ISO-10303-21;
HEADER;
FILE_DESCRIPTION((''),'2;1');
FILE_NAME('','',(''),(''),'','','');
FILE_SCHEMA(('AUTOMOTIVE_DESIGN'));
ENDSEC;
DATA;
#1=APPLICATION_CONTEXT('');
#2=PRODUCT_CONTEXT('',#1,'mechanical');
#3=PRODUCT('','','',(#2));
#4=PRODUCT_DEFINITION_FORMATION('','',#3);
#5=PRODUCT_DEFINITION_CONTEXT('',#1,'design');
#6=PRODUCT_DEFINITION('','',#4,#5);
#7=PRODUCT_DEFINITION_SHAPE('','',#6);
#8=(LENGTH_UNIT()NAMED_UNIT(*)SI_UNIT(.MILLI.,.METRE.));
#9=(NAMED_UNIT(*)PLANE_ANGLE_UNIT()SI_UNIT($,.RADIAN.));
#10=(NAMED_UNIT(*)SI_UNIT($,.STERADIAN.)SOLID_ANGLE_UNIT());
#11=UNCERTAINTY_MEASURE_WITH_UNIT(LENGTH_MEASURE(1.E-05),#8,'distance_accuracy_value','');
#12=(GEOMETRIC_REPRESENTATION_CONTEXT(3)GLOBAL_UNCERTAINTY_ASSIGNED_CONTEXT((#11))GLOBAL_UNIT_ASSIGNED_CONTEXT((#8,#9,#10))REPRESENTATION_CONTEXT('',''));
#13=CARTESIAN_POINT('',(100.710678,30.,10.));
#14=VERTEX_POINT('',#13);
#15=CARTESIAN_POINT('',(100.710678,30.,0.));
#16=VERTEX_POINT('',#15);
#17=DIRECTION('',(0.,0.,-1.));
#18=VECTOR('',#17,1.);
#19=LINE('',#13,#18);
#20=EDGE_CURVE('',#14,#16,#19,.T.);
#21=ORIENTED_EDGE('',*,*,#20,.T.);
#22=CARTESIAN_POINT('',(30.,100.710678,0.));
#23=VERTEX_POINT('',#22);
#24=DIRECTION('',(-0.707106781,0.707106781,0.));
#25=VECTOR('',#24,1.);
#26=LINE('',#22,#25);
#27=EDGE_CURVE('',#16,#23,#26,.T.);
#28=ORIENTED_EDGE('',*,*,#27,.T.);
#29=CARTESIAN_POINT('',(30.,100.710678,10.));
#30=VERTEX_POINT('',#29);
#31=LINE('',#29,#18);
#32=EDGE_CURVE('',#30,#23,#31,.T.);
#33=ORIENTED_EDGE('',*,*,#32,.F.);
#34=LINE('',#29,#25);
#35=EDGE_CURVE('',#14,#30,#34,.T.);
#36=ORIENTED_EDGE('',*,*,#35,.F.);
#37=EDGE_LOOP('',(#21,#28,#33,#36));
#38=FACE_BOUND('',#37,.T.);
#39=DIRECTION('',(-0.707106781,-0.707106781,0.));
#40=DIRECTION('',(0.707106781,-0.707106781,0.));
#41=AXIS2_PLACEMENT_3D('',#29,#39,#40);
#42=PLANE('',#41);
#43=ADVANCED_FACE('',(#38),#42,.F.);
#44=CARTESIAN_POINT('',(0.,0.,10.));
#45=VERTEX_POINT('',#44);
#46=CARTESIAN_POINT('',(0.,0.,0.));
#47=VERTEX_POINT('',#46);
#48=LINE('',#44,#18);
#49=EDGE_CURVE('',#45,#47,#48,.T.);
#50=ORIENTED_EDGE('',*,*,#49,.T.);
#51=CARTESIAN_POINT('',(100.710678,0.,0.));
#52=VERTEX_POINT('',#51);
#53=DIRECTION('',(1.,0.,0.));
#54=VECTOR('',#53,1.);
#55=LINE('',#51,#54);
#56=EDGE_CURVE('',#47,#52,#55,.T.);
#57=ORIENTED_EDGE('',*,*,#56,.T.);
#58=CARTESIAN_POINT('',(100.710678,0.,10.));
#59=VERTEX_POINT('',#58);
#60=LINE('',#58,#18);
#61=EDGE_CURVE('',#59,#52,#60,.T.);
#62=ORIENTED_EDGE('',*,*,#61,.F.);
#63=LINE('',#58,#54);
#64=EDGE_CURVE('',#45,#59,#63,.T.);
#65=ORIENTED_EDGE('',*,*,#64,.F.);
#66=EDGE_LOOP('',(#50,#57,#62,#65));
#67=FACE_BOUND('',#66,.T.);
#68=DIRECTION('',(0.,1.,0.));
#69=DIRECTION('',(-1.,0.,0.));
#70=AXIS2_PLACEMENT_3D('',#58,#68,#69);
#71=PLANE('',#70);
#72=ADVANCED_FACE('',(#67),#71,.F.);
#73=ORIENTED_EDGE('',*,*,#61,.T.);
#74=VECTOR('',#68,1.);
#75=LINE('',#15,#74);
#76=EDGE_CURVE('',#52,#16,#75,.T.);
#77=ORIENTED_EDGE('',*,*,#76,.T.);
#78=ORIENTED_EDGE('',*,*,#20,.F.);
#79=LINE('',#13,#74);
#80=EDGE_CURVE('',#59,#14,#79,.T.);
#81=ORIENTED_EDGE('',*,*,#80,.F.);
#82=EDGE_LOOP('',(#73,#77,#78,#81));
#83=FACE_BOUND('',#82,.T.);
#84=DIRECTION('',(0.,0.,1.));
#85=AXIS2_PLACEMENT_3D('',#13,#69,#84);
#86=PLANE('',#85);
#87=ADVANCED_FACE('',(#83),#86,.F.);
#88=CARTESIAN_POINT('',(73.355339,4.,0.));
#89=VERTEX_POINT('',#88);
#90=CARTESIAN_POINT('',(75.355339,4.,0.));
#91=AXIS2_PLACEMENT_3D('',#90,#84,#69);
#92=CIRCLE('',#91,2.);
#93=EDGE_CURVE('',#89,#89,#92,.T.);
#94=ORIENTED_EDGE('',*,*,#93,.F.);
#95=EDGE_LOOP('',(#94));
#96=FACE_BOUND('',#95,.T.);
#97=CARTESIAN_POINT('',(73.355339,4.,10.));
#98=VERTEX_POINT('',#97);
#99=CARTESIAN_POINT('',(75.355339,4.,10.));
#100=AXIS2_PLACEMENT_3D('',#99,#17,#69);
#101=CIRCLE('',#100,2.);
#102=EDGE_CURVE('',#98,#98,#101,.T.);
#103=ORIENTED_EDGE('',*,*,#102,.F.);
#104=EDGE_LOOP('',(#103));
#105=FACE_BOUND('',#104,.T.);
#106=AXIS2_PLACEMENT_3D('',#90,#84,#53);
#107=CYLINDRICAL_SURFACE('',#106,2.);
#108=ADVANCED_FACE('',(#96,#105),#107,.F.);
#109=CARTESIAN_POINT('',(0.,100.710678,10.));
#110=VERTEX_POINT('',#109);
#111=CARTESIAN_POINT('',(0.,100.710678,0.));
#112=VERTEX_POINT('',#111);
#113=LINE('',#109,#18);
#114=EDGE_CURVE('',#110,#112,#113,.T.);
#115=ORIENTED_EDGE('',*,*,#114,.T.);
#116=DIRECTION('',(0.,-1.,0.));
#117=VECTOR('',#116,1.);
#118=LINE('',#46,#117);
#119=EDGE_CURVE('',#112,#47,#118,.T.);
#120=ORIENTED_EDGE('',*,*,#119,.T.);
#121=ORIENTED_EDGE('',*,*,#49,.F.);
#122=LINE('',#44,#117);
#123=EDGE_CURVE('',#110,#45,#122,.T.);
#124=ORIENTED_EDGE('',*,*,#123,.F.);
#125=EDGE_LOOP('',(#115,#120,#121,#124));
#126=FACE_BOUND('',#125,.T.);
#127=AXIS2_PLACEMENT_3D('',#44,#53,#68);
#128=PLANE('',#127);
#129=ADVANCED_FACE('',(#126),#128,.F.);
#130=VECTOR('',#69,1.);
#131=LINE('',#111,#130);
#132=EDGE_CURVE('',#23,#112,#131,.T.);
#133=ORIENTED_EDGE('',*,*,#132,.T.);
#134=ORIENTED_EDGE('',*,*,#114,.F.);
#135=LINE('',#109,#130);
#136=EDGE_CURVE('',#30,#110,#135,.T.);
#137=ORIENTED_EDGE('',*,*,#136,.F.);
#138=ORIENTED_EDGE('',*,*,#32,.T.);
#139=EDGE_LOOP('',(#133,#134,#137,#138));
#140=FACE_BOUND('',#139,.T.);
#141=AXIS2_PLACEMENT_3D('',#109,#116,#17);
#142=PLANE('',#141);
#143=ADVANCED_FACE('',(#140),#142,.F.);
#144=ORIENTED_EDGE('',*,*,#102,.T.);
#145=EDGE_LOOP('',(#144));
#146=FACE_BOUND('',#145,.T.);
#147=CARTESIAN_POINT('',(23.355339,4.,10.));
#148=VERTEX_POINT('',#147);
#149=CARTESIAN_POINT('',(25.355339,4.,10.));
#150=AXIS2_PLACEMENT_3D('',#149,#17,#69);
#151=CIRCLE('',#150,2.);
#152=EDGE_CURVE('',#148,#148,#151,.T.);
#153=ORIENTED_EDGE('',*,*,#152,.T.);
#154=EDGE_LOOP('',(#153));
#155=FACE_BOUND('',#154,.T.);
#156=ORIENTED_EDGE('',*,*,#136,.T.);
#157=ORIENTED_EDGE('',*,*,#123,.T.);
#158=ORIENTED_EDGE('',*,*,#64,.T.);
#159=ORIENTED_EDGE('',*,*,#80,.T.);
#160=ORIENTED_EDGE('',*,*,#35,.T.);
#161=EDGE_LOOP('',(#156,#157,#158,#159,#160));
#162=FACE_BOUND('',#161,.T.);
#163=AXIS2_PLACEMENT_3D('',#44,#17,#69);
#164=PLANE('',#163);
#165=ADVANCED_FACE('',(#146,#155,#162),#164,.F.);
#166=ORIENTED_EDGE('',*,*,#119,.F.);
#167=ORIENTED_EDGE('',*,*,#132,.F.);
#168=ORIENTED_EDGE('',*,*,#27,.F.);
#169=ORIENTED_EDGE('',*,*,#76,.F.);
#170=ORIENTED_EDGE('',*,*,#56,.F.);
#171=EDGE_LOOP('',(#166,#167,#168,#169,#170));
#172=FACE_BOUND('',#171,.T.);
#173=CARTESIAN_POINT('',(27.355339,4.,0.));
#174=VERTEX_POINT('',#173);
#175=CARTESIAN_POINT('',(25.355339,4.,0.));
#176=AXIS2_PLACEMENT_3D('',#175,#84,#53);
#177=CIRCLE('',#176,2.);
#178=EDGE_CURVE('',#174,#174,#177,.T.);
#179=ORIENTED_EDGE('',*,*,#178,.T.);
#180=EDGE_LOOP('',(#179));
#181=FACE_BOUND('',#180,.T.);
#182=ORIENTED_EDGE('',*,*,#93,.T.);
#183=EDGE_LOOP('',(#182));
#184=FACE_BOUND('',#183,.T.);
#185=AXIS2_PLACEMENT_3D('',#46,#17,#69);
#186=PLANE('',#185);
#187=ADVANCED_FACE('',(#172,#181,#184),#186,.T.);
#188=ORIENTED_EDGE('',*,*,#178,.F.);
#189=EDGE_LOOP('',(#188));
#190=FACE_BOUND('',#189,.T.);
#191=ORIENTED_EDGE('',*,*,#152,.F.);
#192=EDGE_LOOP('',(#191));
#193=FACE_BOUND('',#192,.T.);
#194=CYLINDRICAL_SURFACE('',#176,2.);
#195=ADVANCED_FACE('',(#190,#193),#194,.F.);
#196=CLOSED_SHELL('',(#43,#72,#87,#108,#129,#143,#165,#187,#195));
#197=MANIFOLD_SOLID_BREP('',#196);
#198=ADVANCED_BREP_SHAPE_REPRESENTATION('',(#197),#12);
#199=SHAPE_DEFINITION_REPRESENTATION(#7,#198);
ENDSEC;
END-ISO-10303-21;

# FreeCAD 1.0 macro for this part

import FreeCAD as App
import Part
import Sketcher
from FreeCAD import Vector
Q = App.Units.Quantity

doc = App.newDocument("Part")
body = doc.addObject("PartDesign::Body", "Body")

sketch1 = doc.addObject("Sketcher::SketchObject", "Sketch")
body.addObject(sketch1)
sketch1.AttachmentSupport = (doc.XY_Plane, [""])
sketch1.MapMode = "FlatFace"
sketch1.addGeometry([
    Part.LineSegment(Vector(0, 101, 0), Vector(0, 0, 0)),
    Part.LineSegment(Vector(0, 0, 0), Vector(101, 0, 0)),
    Part.LineSegment(Vector(101, 0, 0), Vector(101, 30, 0)),
    Part.LineSegment(Vector(101, 30, 0), Vector(30, 101, 0)),
    Part.LineSegment(Vector(30, 101, 0), Vector(0, 101, 0)),
], False)
sketch1.addConstraint([
    Sketcher.Constraint("Coincident", 0, 2, 1, 1),
    Sketcher.Constraint("Coincident", 1, 2, 2, 1),
    Sketcher.Constraint("Coincident", 2, 2, 3, 1),
    Sketcher.Constraint("Coincident", 3, 2, 4, 1),
    Sketcher.Constraint("Coincident", 4, 2, 0, 1),
    Sketcher.Constraint("Vertical", 0),
    Sketcher.Constraint("Horizontal", 1),
    Sketcher.Constraint("Vertical", 2),
    Sketcher.Constraint("Horizontal", 4),
    Sketcher.Constraint("Coincident", 0, 2, -1, 1),
    Sketcher.Constraint("Equal", 1, 0),
    Sketcher.Constraint("Equal", 4, 2),
    Sketcher.Constraint("DistanceX", 4, 2, 4, 1, Q("30 mm")),
    Sketcher.Constraint("Distance", 3, Q("100 mm")),
])
pad1 = doc.addObject("PartDesign::Pad", "Pad")
body.addObject(pad1)
pad1.Profile = sketch1
pad1.Length = 10

sketch2 = doc.addObject("Sketcher::SketchObject", "Sketch001")
body.addObject(sketch2)
sketch2.AttachmentSupport = (doc.XY_Plane, [""])
sketch2.MapMode = "FlatFace"
sketch2.AttachmentOffset = App.Placement(Vector(0, 0, 10), App.Rotation())
sketch2.addGeometry([
    Part.Circle(Vector(25.4, 4, 0), Vector(0, 0, 1), 2),
    Part.Circle(Vector(75.4, 4, 0), Vector(0, 0, 1), 2),
], False)
sketch2.addConstraint([
    Sketcher.Constraint("Equal", 0, 1),
    Sketcher.Constraint("Horizontal", 0, 3, 1, 3),
    Sketcher.Constraint("Diameter", 0, Q("4 mm")),
    Sketcher.Constraint("DistanceY", -1, 1, 0, 3, Q("4 mm")),
    Sketcher.Constraint("DistanceX", 0, 3, 1, 3, Q("50 mm")),
    Sketcher.Constraint("DistanceX", -1, 1, 0, 3, Q("25.355339 mm")),
])
pocket1 = doc.addObject("PartDesign::Pocket", "Pocket")
body.addObject(pocket1)
pocket1.Profile = sketch2
pocket1.Type = "ThroughAll"
pocket1.Midplane = True

doc.recompute()
